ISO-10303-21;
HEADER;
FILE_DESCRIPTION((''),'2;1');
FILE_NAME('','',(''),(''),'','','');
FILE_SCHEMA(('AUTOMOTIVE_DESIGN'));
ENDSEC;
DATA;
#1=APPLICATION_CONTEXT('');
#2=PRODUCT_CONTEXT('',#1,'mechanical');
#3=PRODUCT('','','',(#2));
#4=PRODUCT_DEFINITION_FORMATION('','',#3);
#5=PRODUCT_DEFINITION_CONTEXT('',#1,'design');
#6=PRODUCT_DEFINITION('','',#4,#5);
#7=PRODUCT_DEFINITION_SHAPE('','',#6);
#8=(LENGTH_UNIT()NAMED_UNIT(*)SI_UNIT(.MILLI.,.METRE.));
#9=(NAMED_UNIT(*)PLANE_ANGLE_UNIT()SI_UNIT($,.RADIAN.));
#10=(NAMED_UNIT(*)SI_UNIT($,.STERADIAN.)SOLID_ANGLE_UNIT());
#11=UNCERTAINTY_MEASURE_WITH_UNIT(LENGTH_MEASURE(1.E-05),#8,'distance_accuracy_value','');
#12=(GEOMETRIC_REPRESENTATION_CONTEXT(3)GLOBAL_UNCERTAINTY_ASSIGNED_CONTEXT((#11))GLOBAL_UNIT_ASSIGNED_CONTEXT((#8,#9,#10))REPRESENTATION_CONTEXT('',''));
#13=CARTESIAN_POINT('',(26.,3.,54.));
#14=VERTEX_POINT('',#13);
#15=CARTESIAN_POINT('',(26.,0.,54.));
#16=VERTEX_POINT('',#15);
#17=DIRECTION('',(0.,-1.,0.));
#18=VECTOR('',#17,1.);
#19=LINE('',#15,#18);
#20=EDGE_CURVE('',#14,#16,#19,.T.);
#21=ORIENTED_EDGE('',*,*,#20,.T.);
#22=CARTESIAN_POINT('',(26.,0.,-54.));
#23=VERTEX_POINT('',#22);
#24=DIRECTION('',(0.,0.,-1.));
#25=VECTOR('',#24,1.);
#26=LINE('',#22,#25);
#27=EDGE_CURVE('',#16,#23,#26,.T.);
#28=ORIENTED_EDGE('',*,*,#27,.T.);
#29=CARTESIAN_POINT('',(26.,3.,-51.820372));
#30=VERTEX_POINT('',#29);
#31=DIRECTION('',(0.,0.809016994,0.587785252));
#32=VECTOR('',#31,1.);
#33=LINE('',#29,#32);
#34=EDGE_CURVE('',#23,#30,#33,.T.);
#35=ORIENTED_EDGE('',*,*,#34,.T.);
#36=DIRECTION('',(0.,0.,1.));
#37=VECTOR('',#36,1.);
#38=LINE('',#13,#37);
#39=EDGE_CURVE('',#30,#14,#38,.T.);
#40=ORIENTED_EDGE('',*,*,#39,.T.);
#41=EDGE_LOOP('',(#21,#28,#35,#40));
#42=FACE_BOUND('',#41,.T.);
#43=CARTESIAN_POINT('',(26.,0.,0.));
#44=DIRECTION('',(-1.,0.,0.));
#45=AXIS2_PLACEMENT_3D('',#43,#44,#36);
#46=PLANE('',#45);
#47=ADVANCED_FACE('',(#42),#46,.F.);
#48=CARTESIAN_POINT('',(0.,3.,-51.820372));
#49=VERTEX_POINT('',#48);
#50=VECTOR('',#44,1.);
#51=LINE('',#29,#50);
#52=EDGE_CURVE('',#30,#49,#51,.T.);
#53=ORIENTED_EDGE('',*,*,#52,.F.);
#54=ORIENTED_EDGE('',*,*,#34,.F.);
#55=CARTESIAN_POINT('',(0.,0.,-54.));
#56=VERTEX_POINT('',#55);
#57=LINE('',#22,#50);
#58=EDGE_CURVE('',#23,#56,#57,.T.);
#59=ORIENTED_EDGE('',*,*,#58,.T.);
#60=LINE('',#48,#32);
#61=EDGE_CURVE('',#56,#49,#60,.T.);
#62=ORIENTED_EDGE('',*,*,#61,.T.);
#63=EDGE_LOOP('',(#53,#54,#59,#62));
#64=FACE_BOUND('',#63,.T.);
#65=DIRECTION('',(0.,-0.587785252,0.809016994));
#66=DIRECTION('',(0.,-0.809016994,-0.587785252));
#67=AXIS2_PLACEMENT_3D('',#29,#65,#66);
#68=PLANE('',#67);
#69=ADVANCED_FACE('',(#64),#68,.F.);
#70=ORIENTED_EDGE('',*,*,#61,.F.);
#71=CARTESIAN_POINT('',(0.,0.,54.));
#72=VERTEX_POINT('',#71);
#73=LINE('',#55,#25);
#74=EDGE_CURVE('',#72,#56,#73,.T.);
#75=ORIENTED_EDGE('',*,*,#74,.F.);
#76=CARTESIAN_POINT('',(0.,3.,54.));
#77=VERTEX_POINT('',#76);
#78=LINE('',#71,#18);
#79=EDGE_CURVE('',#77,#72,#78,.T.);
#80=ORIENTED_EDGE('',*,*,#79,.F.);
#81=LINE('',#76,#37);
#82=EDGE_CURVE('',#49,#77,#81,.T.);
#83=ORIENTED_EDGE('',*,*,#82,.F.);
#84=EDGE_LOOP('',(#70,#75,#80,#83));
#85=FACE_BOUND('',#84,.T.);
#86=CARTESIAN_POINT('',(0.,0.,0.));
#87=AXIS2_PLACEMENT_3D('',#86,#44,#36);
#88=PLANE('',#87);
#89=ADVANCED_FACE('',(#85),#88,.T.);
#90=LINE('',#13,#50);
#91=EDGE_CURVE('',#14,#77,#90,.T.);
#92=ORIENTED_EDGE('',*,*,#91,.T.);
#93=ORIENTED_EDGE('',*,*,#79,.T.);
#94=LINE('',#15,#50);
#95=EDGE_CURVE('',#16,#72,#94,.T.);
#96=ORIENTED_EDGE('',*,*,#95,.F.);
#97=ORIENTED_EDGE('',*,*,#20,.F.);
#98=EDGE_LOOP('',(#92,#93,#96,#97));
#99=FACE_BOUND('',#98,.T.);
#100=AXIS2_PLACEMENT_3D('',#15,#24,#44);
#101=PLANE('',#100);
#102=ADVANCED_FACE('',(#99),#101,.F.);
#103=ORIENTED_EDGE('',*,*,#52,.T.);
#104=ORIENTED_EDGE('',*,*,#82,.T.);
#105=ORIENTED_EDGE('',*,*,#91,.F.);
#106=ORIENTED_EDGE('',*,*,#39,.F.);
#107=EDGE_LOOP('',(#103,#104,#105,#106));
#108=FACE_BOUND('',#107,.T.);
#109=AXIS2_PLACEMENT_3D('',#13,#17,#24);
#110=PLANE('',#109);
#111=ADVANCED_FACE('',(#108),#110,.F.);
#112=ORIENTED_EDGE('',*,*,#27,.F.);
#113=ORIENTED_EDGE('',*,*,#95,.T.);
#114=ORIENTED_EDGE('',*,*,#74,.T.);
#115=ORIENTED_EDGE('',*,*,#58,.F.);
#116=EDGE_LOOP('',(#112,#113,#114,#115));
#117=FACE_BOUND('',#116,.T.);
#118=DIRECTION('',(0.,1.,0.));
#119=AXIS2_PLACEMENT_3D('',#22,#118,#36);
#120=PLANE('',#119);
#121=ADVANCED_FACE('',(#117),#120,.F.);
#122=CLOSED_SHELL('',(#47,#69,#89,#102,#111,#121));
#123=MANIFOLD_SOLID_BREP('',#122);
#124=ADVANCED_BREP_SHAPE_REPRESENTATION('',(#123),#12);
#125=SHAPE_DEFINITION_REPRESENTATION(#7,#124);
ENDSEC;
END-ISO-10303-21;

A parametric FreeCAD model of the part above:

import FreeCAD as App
import Part
import Sketcher
Q = App.Units.Quantity


def add_polygon(sketch, points):
    """Adds a closed chain of lines whose ends are joined by coincident constraints."""
    first, n = sketch.GeometryCount, len(points)
    for a, b in zip(points, points[1:] + points[:1]):
        sketch.addGeometry(Part.LineSegment(App.Vector(*a, 0), App.Vector(*b, 0)), False)
    for i in range(n):
        sketch.addConstraint(Sketcher.Constraint("Coincident", first + i, 2, first + (i + 1) % n, 1))

doc = App.newDocument("Part")
body = doc.addObject("PartDesign::Body", "Body")

# Sketch on YZ plane
sketch1 = body.newObject("Sketcher::SketchObject", "Sketch")
sketch1.AttachmentSupport = (doc.getObject("YZ_Plane"), [""])
sketch1.MapMode = "FlatFace"
add_polygon(sketch1, [(0, 54), (0, -54), (3, -51.8), (3, 54)])  # lines 0-3
sketch1.addConstraint([
    Sketcher.Constraint("Vertical", 0),
    Sketcher.Constraint("Vertical", 2),
    Sketcher.Constraint("Horizontal", 3),
    Sketcher.Constraint("Symmetric", 0, 2, 3, 2, -1, 1),
    Sketcher.Constraint("DistanceX", 3, 2, 3, 1, 3.0),
    Sketcher.Constraint("DistanceY", 0, 2, 0, 1, 108.0),
    Sketcher.Constraint("Angle", 1, Q("36 deg")),
])
pad1 = body.newObject("PartDesign::Pad", "Pad")
pad1.Profile = sketch1
pad1.Length = 26

doc.recompute()
